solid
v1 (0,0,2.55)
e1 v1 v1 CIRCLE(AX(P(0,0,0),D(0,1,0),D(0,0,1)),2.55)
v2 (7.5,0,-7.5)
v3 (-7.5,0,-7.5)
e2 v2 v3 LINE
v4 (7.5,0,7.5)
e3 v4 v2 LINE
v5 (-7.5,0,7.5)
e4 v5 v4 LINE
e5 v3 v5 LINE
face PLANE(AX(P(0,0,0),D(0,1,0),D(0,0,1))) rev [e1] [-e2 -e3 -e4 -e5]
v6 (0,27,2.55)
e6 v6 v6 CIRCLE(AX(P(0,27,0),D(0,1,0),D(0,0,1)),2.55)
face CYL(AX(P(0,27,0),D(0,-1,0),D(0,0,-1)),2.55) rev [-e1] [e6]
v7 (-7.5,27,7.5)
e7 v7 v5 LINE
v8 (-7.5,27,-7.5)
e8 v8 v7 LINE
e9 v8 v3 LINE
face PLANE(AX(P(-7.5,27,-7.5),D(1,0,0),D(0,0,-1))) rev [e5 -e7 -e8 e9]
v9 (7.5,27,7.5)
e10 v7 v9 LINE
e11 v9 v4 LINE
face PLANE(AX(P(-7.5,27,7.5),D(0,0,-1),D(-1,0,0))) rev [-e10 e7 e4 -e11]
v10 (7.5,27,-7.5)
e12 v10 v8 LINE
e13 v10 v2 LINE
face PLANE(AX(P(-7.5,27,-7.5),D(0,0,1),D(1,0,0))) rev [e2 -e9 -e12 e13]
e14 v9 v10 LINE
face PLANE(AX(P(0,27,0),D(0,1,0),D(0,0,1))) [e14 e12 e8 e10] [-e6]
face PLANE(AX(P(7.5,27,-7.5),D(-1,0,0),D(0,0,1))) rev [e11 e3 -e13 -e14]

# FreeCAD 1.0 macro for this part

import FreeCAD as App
import Part
import Sketcher
from FreeCAD import Vector
Q = App.Units.Quantity


def add_polygon(sketch, points):
    """Adds a closed chain of lines whose ends are joined by coincident constraints."""
    first, n = sketch.GeometryCount, len(points)
    for a, b in zip(points, points[1:] + points[:1]):
        sketch.addGeometry(Part.LineSegment(App.Vector(*a, 0), App.Vector(*b, 0)), False)
    for i in range(n):
        sketch.addConstraint(Sketcher.Constraint("Coincident", first + i, 2, first + (i + 1) % n, 1))

doc = App.newDocument("Part")
body = doc.addObject("PartDesign::Body", "Body")

# Sketch on XZ plane
sketch1 = doc.addObject("Sketcher::SketchObject", "Sketch")
body.addObject(sketch1)
sketch1.AttachmentSupport = (doc.XZ_Plane, [""])
sketch1.MapMode = "FlatFace"
add_polygon(sketch1, [(-7.5, -7.5), (-7.5, 7.5), (7.5, 7.5), (7.5, -7.5)])  # lines 0-3
sketch1.addGeometry(Part.Circle(Vector(0, 0, 0), Vector(0, 0, 1), 2.5), False)  # 4
sketch1.addConstraint([
    Sketcher.Constraint("Vertical", 0),
    Sketcher.Constraint("Horizontal", 1),
    Sketcher.Constraint("Vertical", 2),
    Sketcher.Constraint("Horizontal", 3),
    Sketcher.Constraint("Coincident", 4, 3, -1, 1),
    Sketcher.Constraint("Symmetric", 0, 2, 2, 2, -1, 1),
    Sketcher.Constraint("Equal", 3, 0),
    Sketcher.Constraint("Diameter", 4, Q("5.1 mm")),
    Sketcher.Constraint("DistanceX", 1, 1, 1, 2, Q("15 mm")),
])
pad1 = doc.addObject("PartDesign::Pad", "Pad")
body.addObject(pad1)
pad1.Profile = sketch1
pad1.Length = 27
pad1.Reversed = True

doc.recompute()
